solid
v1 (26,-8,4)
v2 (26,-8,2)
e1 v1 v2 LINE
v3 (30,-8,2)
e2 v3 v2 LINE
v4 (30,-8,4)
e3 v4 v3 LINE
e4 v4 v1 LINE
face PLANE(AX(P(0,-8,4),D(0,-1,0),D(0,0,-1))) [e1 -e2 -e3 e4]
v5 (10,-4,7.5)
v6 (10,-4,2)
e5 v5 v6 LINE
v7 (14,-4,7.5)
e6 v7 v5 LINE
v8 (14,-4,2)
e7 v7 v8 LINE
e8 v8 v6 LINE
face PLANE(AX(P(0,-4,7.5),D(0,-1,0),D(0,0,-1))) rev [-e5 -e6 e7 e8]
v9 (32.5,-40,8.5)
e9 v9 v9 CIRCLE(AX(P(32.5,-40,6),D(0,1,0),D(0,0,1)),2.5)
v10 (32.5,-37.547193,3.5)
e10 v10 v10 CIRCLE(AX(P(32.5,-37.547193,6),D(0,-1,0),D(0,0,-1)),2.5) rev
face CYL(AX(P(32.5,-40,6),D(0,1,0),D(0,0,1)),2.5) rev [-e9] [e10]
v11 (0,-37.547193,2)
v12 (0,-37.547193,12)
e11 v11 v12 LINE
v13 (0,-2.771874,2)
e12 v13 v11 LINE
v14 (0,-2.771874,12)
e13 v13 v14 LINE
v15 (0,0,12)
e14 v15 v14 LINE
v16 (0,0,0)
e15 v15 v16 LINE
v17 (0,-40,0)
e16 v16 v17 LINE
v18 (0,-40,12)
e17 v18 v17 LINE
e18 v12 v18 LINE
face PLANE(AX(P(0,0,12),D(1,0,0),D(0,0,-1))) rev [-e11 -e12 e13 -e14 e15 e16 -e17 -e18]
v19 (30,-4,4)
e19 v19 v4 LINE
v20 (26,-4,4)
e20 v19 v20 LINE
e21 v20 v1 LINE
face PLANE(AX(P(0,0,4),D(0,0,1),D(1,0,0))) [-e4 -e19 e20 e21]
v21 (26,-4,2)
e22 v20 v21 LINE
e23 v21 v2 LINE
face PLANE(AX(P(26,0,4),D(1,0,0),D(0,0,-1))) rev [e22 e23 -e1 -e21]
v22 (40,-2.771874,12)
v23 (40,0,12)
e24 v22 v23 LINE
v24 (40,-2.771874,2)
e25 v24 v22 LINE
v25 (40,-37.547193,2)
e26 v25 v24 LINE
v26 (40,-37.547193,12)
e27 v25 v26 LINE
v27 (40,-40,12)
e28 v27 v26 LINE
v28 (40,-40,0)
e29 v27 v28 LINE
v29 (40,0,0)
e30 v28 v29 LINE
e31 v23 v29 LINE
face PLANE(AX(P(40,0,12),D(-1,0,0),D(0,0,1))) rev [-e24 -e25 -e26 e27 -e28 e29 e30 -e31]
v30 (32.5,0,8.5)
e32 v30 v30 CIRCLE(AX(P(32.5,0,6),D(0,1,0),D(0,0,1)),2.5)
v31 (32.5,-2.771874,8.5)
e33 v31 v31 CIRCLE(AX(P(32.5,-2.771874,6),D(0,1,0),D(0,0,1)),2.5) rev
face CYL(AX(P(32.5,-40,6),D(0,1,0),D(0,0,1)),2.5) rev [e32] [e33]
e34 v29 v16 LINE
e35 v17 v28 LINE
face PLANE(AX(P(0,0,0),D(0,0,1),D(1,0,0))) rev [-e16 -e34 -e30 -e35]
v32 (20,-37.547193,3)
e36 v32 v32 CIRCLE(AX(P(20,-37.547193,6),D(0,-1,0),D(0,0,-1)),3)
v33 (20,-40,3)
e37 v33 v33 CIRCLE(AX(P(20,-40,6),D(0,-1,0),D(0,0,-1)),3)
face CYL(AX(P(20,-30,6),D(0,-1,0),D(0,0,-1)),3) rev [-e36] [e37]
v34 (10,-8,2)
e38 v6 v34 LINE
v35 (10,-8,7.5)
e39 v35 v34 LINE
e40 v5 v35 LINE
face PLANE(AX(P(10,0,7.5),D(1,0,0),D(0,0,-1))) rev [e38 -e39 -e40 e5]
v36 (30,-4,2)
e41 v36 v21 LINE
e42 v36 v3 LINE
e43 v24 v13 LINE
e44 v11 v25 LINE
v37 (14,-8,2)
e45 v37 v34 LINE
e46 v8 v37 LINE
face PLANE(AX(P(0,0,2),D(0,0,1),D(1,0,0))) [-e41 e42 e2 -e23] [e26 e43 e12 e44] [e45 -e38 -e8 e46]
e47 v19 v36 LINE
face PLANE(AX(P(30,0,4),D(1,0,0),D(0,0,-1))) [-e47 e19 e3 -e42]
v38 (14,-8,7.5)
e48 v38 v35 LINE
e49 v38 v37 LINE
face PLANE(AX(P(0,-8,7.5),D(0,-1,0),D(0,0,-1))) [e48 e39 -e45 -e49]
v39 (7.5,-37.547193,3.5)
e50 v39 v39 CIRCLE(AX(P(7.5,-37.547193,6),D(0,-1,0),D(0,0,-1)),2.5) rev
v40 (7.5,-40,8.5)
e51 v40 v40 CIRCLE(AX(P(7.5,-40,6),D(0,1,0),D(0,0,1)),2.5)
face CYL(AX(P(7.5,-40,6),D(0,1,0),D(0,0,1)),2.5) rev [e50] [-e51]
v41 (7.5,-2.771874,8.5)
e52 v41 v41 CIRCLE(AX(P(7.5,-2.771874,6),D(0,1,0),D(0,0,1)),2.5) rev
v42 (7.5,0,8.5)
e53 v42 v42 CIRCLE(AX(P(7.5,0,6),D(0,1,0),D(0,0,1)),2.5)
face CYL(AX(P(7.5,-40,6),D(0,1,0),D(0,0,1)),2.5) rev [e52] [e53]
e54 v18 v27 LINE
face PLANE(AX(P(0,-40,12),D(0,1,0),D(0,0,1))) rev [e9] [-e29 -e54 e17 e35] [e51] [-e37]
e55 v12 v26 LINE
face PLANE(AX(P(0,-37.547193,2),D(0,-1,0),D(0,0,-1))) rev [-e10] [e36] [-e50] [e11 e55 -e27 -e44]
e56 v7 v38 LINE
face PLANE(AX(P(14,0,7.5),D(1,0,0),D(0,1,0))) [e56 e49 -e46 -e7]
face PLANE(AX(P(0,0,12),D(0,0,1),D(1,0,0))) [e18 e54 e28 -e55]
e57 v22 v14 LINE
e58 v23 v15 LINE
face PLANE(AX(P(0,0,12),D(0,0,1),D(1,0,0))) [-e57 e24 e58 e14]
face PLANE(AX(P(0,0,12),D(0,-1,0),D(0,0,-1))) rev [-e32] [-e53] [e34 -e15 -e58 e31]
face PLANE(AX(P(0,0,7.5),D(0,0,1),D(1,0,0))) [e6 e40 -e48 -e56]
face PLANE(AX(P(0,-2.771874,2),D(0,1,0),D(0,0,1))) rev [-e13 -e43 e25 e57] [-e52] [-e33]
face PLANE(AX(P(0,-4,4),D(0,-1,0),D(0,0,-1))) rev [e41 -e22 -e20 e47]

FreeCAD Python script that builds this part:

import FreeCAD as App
import Part
import Sketcher

V = App.Vector

doc = App.newDocument("Part")
body = doc.addObject("PartDesign::Body", "Body")

# Sketch on XY plane
sketch1 = body.newObject("Sketcher::SketchObject", "Sketch")
sketch1.AttachmentSupport = (doc.getObject("XY_Plane"), [""])
sketch1.MapMode = "FlatFace"
sketch1.addGeometry([
    Part.LineSegment(V(0, 0, 0), V(0, -40, 0)),
    Part.LineSegment(V(0, -40, 0), V(40, -40, 0)),
    Part.LineSegment(V(40, -40, 0), V(40, 0, 0)),
    Part.LineSegment(V(40, 0, 0), V(0, 0, 0)),
], False)
sketch1.addConstraint([
    Sketcher.Constraint("Coincident", 0, 2, 1, 1),
    Sketcher.Constraint("Coincident", 1, 2, 2, 1),
    Sketcher.Constraint("Coincident", 2, 2, 3, 1),
    Sketcher.Constraint("Coincident", 3, 2, 0, 1),
    Sketcher.Constraint("Vertical", 0),
    Sketcher.Constraint("Horizontal", 1),
    Sketcher.Constraint("Vertical", 2),
    Sketcher.Constraint("Horizontal", 3),
    Sketcher.Constraint("Coincident", 3, 2, -1, 1),
    Sketcher.Constraint("Equal", 3, 0),
    Sketcher.Constraint("DistanceX", 1, 1, 1, 2, 40.0),
])
pad1 = body.newObject("PartDesign::Pad", "Pad")
pad1.Profile = sketch1
pad1.Length = 12

# Sketch on XZ plane
sketch2 = body.newObject("Sketcher::SketchObject", "Sketch001")
sketch2.AttachmentSupport = (doc.getObject("XZ_Plane"), [""])
sketch2.MapMode = "FlatFace"
sketch2.addGeometry([
    Part.Circle(V(7.5, 6, 0), V(0, 0, 1), 2.5),
    Part.Circle(V(32.5, 6, 0), V(0, 0, 1), 2.5),
], False)
sketch2.addConstraint([
    Sketcher.Constraint("Equal", 0, 1),
    Sketcher.Constraint("Horizontal", 0, 3, 1, 3),
    Sketcher.Constraint("Diameter", 0, 5.0),
    Sketcher.Constraint("DistanceY", -1, 1, 0, 3, 6.0),
    Sketcher.Constraint("DistanceX", 0, 3, 1, 3, 25.0),
    Sketcher.Constraint("DistanceX", -1, 1, 0, 3, 7.5),
])
pocket1 = body.newObject("PartDesign::Pocket", "Pocket")
pocket1.Profile = sketch2
pocket1.Type = "ThroughAll"
pocket1.Reversed = True

# Sketch on XY plane
sketch3 = body.newObject("Sketcher::SketchObject", "Sketch002")
sketch3.AttachmentSupport = (doc.getObject("XY_Plane"), [""])
sketch3.MapMode = "FlatFace"
sketch3.AttachmentOffset = App.Placement(V(0, 0, 12), App.Rotation())
sketch3.addGeometry([
    Part.LineSegment(V(0, -3, 0), V(0, -38, 0)),
    Part.LineSegment(V(0, -38, 0), V(40, -38, 0)),
    Part.LineSegment(V(40, -38, 0), V(40, -3, 0)),
    Part.LineSegment(V(40, -3, 0), V(0, -3, 0)),
], False)
sketch3.addConstraint([
    Sketcher.Constraint("Coincident", 0, 2, 1, 1),
    Sketcher.Constraint("Coincident", 1, 2, 2, 1),
    Sketcher.Constraint("Coincident", 2, 2, 3, 1),
    Sketcher.Constraint("Coincident", 3, 2, 0, 1),
    Sketcher.Constraint("Vertical", 0),
    Sketcher.Constraint("Horizontal", 1),
    Sketcher.Constraint("Vertical", 2),
    Sketcher.Constraint("Horizontal", 3),
    Sketcher.Constraint("PointOnObject", 0, 2, -2),
    Sketcher.Constraint("DistanceX", 1, 1, 1, 2, 40.0),
    Sketcher.Constraint("DistanceY", 0, 2, 0, 1, 34.775319),
    Sketcher.Constraint("DistanceY", 0, 2, -1, 1, 37.547193),
])
pocket2 = body.newObject("PartDesign::Pocket", "Pocket001")
pocket2.Profile = sketch3
pocket2.Length = 10

# Sketch on XZ plane
sketch4 = body.newObject("Sketcher::SketchObject", "Sketch003")
sketch4.AttachmentSupport = (doc.getObject("XZ_Plane"), [""])
sketch4.MapMode = "FlatFace"
sketch4.AttachmentOffset = App.Placement(V(0, 0, 40), App.Rotation())
sketch4.addGeometry(Part.Circle(V(20, 6, 0), V(0, 0, 1), 3), False)
sketch4.addConstraint([
    Sketcher.Constraint("Diameter", 0, 6.0),
    Sketcher.Constraint("DistanceX", -1, 1, 0, 3, 20.0),
    Sketcher.Constraint("DistanceY", -1, 1, 0, 3, 6.0),
])
pocket3 = body.newObject("PartDesign::Pocket", "Pocket002")
pocket3.Profile = sketch4
pocket3.Length = 10

# Sketch on XY plane
sketch5 = body.newObject("Sketcher::SketchObject", "Sketch004")
sketch5.AttachmentSupport = (doc.getObject("XY_Plane"), [""])
sketch5.MapMode = "FlatFace"
sketch5.AttachmentOffset = App.Placement(V(0, 0, 2), App.Rotation())
sketch5.addGeometry([
    Part.LineSegment(V(26, -4, 0), V(26, -8, 0)),
    Part.LineSegment(V(26, -8, 0), V(30, -8, 0)),
    Part.LineSegment(V(30, -8, 0), V(30, -4, 0)),
    Part.LineSegment(V(30, -4, 0), V(26, -4, 0)),
], False)
sketch5.addConstraint([
    Sketcher.Constraint("Coincident", 0, 2, 1, 1),
    Sketcher.Constraint("Coincident", 1, 2, 2, 1),
    Sketcher.Constraint("Coincident", 2, 2, 3, 1),
    Sketcher.Constraint("Coincident", 3, 2, 0, 1),
    Sketcher.Constraint("Vertical", 0),
    Sketcher.Constraint("Horizontal", 1),
    Sketcher.Constraint("Vertical", 2),
    Sketcher.Constraint("Horizontal", 3),
    Sketcher.Constraint("Equal", 3, 0),
    Sketcher.Constraint("DistanceX", 1, 1, 1, 2, 4.0),
    Sketcher.Constraint("DistanceX", -1, 1, 0, 2, 26.0),
    Sketcher.Constraint("DistanceY", 0, 2, -1, 1, 8.0),
])
pad2 = body.newObject("PartDesign::Pad", "Pad001")
pad2.Profile = sketch5
pad2.Length = 2

# Sketch on XY plane
sketch6 = body.newObject("Sketcher::SketchObject", "Sketch005")
sketch6.AttachmentSupport = (doc.getObject("XY_Plane"), [""])
sketch6.MapMode = "FlatFace"
sketch6.AttachmentOffset = App.Placement(V(0, 0, 2), App.Rotation())
sketch6.addGeometry([
    Part.LineSegment(V(10, -4, 0), V(10, -8, 0)),
    Part.LineSegment(V(10, -8, 0), V(14, -8, 0)),
    Part.LineSegment(V(14, -8, 0), V(14, -4, 0)),
    Part.LineSegment(V(14, -4, 0), V(10, -4, 0)),
], False)
sketch6.addConstraint([
    Sketcher.Constraint("Coincident", 0, 2, 1, 1),
    Sketcher.Constraint("Coincident", 1, 2, 2, 1),
    Sketcher.Constraint("Coincident", 2, 2, 3, 1),
    Sketcher.Constraint("Coincident", 3, 2, 0, 1),
    Sketcher.Constraint("Vertical", 0),
    Sketcher.Constraint("Horizontal", 1),
    Sketcher.Constraint("Vertical", 2),
    Sketcher.Constraint("Horizontal", 3),
    Sketcher.Constraint("Equal", 3, 0),
    Sketcher.Constraint("DistanceX", 1, 1, 1, 2, 4.0),
    Sketcher.Constraint("DistanceX", -1, 1, 0, 2, 10.0),
    Sketcher.Constraint("DistanceY", 0, 2, -1, 1, 8.0),
])
pad3 = body.newObject("PartDesign::Pad", "Pad002")
pad3.Profile = sketch6
pad3.Length = 5.5

doc.recompute()
